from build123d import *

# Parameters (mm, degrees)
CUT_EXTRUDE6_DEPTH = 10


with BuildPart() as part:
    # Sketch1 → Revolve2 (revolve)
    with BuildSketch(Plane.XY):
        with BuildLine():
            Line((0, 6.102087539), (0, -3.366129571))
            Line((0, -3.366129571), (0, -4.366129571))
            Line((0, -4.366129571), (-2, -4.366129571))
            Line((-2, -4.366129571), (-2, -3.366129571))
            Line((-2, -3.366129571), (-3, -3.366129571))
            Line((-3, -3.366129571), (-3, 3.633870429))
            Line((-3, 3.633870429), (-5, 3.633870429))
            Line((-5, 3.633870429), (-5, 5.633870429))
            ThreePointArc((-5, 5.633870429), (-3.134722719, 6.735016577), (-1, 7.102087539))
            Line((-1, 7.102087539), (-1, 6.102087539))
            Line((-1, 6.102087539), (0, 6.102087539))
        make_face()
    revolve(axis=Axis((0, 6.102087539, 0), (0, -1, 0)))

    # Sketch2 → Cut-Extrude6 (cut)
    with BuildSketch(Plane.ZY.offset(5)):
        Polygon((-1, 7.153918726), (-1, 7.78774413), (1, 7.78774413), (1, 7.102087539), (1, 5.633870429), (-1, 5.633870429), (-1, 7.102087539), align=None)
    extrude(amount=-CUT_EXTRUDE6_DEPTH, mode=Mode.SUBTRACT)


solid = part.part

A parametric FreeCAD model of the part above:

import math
import FreeCAD as App
import Part
import Sketcher

V = App.Vector

doc = App.newDocument("Part")
params = doc.addObject("Spreadsheet::Sheet", "Params")
for row, (alias, value) in enumerate([
    ("sketch1_radius", "6 mm"),
    ("sketch1_width", "1 mm"),
    ("sketch1_width2", "2 mm"),
    ("sketch1_height", "7 mm"),
    ("revolution_angle", "360 deg"),
    ("sketch2_height", "2 mm"),
    ("pocket1_length", "10 mm"),
], start=1):
    params.set(f"A{row}", alias)
    params.set(f"B{row}", "=" + value)
    params.setAlias(f"B{row}", alias)

body = doc.addObject("PartDesign::Body", "Body")

# Sketch on XY plane
sketch1 = doc.addObject("Sketcher::SketchObject", "Sketch")
body.addObject(sketch1)
sketch1.AttachmentSupport = (doc.XY_Plane, [""])
sketch1.MapMode = "FlatFace"
sketch1.addGeometry([
    Part.LineSegment(V(0, -4.4, 0), V(0, 6.1, 0)),  # 0
    Part.LineSegment(V(0, 6.1, 0), V(-1, 6.1, 0)),  # 1
    Part.LineSegment(V(-1, 6.1, 0), V(-1, 7.1, 0)),  # 2
    Part.ArcOfCircle(Part.Circle(V(-1.1, 1.1, 0), V(0, 0, 1), 6), math.radians(89), math.radians(131)),  # 3
    Part.LineSegment(V(-5, 5.6, 0), V(-5, 3.6, 0)),  # 4
    Part.LineSegment(V(-5, 3.6, 0), V(-3, 3.6, 0)),  # 5
    Part.LineSegment(V(-3, 3.6, 0), V(-3, -3.4, 0)),  # 6
    Part.LineSegment(V(-3, -3.4, 0), V(-2, -3.4, 0)),  # 7
    Part.LineSegment(V(-2, -3.4, 0), V(-2, -4.4, 0)),  # 8
    Part.LineSegment(V(-2, -4.4, 0), V(0, -4.4, 0)),  # 9
], False)
sketch1.addConstraint([
    Sketcher.Constraint("Coincident", 0, 2, 1, 1),
    Sketcher.Constraint("Coincident", 1, 2, 2, 1),
    Sketcher.Constraint("Coincident", 2, 2, 3, 1),
    Sketcher.Constraint("Coincident", 3, 2, 4, 1),
    Sketcher.Constraint("Coincident", 4, 2, 5, 1),
    Sketcher.Constraint("Coincident", 5, 2, 6, 1),
    Sketcher.Constraint("Coincident", 6, 2, 7, 1),
    Sketcher.Constraint("Coincident", 7, 2, 8, 1),
    Sketcher.Constraint("Coincident", 8, 2, 9, 1),
    Sketcher.Constraint("Coincident", 9, 2, 0, 1),
    Sketcher.Constraint("Vertical", 0),
    Sketcher.Constraint("Horizontal", 1),
    Sketcher.Constraint("Vertical", 2),
    Sketcher.Constraint("Vertical", 4),
    Sketcher.Constraint("Horizontal", 5),
    Sketcher.Constraint("Vertical", 6),
    Sketcher.Constraint("Horizontal", 7),
    Sketcher.Constraint("Vertical", 8),
    Sketcher.Constraint("Horizontal", 9),
    Sketcher.Constraint("PointOnObject", 0, 2, -2),
    Sketcher.Constraint("Equal", 1, 7),
    Sketcher.Constraint("Equal", 5, 9),
    Sketcher.Constraint("Equal", 7, 2),
    Sketcher.Constraint("Equal", 9, 4),
    Sketcher.Constraint("Equal", 2, 8),
    Sketcher.Constraint("Radius", 3, 6.0),
    Sketcher.Constraint("DistanceX", 1, 2, 1, 1, 1.0),
    Sketcher.Constraint("DistanceX", 5, 1, 5, 2, 2.0),
    Sketcher.Constraint("DistanceY", 6, 2, 6, 1, 7.0),
    Sketcher.Constraint("DistanceY", 0, 1, 0, 2, 10.468217),
    Sketcher.Constraint("DistanceY", -1, 1, 3, 2, 5.63387),
])
sketch1.setExpression("Constraints[25]", "Params.sketch1_radius")
sketch1.setExpression("Constraints[26]", "Params.sketch1_width")
sketch1.setExpression("Constraints[27]", "Params.sketch1_width2")
sketch1.setExpression("Constraints[28]", "Params.sketch1_height")
revolution = doc.addObject("PartDesign::Revolution", "Revolution")
body.addObject(revolution)
revolution.Profile = sketch1
revolution.ReferenceAxis = (sketch1, ["V_Axis"])
revolution.setExpression("Angle", "Params.revolution_angle")

# Sketch on YZ plane
sketch2 = doc.addObject("Sketcher::SketchObject", "Sketch001")
body.addObject(sketch2)
sketch2.AttachmentSupport = (doc.YZ_Plane, [""])
sketch2.MapMode = "FlatFace"
sketch2.AttachmentOffset = App.Placement(V(0, 0, -5), App.Rotation())
sketch2.addGeometry([
    Part.LineSegment(V(7.8, -1, 0), V(5.6, -1, 0)),
    Part.LineSegment(V(5.6, -1, 0), V(5.6, 1, 0)),
    Part.LineSegment(V(5.6, 1, 0), V(7.8, 1, 0)),
    Part.LineSegment(V(7.8, 1, 0), V(7.8, -1, 0)),
], False)
sketch2.addConstraint([
    Sketcher.Constraint("Coincident", 0, 2, 1, 1),
    Sketcher.Constraint("Coincident", 1, 2, 2, 1),
    Sketcher.Constraint("Coincident", 2, 2, 3, 1),
    Sketcher.Constraint("Coincident", 3, 2, 0, 1),
    Sketcher.Constraint("Horizontal", 0),
    Sketcher.Constraint("Vertical", 1),
    Sketcher.Constraint("Horizontal", 2),
    Sketcher.Constraint("Vertical", 3),
    Sketcher.Constraint("DistanceY", 1, 1, 1, 2, 2.0),
    Sketcher.Constraint("DistanceY", 0, 2, -1, 1, 1.0),
    Sketcher.Constraint("DistanceX", 0, 2, 0, 1, 2.153874),
    Sketcher.Constraint("DistanceX", -1, 1, 0, 2, 5.63387),
])
sketch2.setExpression("Constraints[8]", "Params.sketch2_height")
pocket1 = doc.addObject("PartDesign::Pocket", "Pocket")
body.addObject(pocket1)
pocket1.Profile = sketch2
pocket1.setExpression("Length", "Params.pocket1_length")
pocket1.Reversed = True

doc.recompute()
